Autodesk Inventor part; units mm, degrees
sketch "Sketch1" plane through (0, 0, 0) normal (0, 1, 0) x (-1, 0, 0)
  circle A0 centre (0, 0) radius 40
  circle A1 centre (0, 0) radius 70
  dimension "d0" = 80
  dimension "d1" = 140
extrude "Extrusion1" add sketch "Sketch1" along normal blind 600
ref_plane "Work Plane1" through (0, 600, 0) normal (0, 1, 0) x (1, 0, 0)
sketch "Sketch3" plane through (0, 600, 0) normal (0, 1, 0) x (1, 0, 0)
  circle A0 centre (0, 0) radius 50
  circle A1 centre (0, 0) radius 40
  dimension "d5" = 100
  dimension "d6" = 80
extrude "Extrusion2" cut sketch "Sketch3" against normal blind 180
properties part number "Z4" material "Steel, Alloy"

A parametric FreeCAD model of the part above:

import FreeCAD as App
import Part
import Sketcher

V = App.Vector

doc = App.newDocument("Part")
body = doc.addObject("PartDesign::Body", "Body")

sketch1 = body.newObject("Sketcher::SketchObject", "Sketch")
sketch1.AttachmentSupport = (doc.getObject("XZ_Plane"), [""])
sketch1.MapMode = "FlatFace"
sketch1.addGeometry([
    Part.Circle(V(0, 0, 0), V(0, 0, 1), 70),
    Part.Circle(V(0, 0, 0), V(0, 0, 1), 40),
], False)
sketch1.addConstraint([
    Sketcher.Constraint("Coincident", 0, 3, -1, 1),
    Sketcher.Constraint("Coincident", 1, 3, -1, 1),
    Sketcher.Constraint("Diameter", 0, 140.0),
    Sketcher.Constraint("Diameter", 1, 80.0),
])
pad1 = body.newObject("PartDesign::Pad", "Pad")
pad1.Profile = sketch1
pad1.Length = 600
pad1.Reversed = True

sketch2 = body.newObject("Sketcher::SketchObject", "Sketch001")
sketch2.AttachmentSupport = (doc.getObject("XZ_Plane"), [""])
sketch2.MapMode = "FlatFace"
sketch2.AttachmentOffset = App.Placement(V(0, 0, -600), App.Rotation())
sketch2.addGeometry([
    Part.Circle(V(0, 0, 0), V(0, 0, 1), 50),
    Part.Circle(V(0, 0, 0), V(0, 0, 1), 40),
], False)
sketch2.addConstraint([
    Sketcher.Constraint("Coincident", 0, 3, -1, 1),
    Sketcher.Constraint("Coincident", 1, 3, -1, 1),
    Sketcher.Constraint("Diameter", 0, 100.0),
    Sketcher.Constraint("Diameter", 1, 80.0),
])
pocket1 = body.newObject("PartDesign::Pocket", "Pocket")
pocket1.Profile = sketch2
pocket1.Length = 180
pocket1.Reversed = True

doc.recompute()
